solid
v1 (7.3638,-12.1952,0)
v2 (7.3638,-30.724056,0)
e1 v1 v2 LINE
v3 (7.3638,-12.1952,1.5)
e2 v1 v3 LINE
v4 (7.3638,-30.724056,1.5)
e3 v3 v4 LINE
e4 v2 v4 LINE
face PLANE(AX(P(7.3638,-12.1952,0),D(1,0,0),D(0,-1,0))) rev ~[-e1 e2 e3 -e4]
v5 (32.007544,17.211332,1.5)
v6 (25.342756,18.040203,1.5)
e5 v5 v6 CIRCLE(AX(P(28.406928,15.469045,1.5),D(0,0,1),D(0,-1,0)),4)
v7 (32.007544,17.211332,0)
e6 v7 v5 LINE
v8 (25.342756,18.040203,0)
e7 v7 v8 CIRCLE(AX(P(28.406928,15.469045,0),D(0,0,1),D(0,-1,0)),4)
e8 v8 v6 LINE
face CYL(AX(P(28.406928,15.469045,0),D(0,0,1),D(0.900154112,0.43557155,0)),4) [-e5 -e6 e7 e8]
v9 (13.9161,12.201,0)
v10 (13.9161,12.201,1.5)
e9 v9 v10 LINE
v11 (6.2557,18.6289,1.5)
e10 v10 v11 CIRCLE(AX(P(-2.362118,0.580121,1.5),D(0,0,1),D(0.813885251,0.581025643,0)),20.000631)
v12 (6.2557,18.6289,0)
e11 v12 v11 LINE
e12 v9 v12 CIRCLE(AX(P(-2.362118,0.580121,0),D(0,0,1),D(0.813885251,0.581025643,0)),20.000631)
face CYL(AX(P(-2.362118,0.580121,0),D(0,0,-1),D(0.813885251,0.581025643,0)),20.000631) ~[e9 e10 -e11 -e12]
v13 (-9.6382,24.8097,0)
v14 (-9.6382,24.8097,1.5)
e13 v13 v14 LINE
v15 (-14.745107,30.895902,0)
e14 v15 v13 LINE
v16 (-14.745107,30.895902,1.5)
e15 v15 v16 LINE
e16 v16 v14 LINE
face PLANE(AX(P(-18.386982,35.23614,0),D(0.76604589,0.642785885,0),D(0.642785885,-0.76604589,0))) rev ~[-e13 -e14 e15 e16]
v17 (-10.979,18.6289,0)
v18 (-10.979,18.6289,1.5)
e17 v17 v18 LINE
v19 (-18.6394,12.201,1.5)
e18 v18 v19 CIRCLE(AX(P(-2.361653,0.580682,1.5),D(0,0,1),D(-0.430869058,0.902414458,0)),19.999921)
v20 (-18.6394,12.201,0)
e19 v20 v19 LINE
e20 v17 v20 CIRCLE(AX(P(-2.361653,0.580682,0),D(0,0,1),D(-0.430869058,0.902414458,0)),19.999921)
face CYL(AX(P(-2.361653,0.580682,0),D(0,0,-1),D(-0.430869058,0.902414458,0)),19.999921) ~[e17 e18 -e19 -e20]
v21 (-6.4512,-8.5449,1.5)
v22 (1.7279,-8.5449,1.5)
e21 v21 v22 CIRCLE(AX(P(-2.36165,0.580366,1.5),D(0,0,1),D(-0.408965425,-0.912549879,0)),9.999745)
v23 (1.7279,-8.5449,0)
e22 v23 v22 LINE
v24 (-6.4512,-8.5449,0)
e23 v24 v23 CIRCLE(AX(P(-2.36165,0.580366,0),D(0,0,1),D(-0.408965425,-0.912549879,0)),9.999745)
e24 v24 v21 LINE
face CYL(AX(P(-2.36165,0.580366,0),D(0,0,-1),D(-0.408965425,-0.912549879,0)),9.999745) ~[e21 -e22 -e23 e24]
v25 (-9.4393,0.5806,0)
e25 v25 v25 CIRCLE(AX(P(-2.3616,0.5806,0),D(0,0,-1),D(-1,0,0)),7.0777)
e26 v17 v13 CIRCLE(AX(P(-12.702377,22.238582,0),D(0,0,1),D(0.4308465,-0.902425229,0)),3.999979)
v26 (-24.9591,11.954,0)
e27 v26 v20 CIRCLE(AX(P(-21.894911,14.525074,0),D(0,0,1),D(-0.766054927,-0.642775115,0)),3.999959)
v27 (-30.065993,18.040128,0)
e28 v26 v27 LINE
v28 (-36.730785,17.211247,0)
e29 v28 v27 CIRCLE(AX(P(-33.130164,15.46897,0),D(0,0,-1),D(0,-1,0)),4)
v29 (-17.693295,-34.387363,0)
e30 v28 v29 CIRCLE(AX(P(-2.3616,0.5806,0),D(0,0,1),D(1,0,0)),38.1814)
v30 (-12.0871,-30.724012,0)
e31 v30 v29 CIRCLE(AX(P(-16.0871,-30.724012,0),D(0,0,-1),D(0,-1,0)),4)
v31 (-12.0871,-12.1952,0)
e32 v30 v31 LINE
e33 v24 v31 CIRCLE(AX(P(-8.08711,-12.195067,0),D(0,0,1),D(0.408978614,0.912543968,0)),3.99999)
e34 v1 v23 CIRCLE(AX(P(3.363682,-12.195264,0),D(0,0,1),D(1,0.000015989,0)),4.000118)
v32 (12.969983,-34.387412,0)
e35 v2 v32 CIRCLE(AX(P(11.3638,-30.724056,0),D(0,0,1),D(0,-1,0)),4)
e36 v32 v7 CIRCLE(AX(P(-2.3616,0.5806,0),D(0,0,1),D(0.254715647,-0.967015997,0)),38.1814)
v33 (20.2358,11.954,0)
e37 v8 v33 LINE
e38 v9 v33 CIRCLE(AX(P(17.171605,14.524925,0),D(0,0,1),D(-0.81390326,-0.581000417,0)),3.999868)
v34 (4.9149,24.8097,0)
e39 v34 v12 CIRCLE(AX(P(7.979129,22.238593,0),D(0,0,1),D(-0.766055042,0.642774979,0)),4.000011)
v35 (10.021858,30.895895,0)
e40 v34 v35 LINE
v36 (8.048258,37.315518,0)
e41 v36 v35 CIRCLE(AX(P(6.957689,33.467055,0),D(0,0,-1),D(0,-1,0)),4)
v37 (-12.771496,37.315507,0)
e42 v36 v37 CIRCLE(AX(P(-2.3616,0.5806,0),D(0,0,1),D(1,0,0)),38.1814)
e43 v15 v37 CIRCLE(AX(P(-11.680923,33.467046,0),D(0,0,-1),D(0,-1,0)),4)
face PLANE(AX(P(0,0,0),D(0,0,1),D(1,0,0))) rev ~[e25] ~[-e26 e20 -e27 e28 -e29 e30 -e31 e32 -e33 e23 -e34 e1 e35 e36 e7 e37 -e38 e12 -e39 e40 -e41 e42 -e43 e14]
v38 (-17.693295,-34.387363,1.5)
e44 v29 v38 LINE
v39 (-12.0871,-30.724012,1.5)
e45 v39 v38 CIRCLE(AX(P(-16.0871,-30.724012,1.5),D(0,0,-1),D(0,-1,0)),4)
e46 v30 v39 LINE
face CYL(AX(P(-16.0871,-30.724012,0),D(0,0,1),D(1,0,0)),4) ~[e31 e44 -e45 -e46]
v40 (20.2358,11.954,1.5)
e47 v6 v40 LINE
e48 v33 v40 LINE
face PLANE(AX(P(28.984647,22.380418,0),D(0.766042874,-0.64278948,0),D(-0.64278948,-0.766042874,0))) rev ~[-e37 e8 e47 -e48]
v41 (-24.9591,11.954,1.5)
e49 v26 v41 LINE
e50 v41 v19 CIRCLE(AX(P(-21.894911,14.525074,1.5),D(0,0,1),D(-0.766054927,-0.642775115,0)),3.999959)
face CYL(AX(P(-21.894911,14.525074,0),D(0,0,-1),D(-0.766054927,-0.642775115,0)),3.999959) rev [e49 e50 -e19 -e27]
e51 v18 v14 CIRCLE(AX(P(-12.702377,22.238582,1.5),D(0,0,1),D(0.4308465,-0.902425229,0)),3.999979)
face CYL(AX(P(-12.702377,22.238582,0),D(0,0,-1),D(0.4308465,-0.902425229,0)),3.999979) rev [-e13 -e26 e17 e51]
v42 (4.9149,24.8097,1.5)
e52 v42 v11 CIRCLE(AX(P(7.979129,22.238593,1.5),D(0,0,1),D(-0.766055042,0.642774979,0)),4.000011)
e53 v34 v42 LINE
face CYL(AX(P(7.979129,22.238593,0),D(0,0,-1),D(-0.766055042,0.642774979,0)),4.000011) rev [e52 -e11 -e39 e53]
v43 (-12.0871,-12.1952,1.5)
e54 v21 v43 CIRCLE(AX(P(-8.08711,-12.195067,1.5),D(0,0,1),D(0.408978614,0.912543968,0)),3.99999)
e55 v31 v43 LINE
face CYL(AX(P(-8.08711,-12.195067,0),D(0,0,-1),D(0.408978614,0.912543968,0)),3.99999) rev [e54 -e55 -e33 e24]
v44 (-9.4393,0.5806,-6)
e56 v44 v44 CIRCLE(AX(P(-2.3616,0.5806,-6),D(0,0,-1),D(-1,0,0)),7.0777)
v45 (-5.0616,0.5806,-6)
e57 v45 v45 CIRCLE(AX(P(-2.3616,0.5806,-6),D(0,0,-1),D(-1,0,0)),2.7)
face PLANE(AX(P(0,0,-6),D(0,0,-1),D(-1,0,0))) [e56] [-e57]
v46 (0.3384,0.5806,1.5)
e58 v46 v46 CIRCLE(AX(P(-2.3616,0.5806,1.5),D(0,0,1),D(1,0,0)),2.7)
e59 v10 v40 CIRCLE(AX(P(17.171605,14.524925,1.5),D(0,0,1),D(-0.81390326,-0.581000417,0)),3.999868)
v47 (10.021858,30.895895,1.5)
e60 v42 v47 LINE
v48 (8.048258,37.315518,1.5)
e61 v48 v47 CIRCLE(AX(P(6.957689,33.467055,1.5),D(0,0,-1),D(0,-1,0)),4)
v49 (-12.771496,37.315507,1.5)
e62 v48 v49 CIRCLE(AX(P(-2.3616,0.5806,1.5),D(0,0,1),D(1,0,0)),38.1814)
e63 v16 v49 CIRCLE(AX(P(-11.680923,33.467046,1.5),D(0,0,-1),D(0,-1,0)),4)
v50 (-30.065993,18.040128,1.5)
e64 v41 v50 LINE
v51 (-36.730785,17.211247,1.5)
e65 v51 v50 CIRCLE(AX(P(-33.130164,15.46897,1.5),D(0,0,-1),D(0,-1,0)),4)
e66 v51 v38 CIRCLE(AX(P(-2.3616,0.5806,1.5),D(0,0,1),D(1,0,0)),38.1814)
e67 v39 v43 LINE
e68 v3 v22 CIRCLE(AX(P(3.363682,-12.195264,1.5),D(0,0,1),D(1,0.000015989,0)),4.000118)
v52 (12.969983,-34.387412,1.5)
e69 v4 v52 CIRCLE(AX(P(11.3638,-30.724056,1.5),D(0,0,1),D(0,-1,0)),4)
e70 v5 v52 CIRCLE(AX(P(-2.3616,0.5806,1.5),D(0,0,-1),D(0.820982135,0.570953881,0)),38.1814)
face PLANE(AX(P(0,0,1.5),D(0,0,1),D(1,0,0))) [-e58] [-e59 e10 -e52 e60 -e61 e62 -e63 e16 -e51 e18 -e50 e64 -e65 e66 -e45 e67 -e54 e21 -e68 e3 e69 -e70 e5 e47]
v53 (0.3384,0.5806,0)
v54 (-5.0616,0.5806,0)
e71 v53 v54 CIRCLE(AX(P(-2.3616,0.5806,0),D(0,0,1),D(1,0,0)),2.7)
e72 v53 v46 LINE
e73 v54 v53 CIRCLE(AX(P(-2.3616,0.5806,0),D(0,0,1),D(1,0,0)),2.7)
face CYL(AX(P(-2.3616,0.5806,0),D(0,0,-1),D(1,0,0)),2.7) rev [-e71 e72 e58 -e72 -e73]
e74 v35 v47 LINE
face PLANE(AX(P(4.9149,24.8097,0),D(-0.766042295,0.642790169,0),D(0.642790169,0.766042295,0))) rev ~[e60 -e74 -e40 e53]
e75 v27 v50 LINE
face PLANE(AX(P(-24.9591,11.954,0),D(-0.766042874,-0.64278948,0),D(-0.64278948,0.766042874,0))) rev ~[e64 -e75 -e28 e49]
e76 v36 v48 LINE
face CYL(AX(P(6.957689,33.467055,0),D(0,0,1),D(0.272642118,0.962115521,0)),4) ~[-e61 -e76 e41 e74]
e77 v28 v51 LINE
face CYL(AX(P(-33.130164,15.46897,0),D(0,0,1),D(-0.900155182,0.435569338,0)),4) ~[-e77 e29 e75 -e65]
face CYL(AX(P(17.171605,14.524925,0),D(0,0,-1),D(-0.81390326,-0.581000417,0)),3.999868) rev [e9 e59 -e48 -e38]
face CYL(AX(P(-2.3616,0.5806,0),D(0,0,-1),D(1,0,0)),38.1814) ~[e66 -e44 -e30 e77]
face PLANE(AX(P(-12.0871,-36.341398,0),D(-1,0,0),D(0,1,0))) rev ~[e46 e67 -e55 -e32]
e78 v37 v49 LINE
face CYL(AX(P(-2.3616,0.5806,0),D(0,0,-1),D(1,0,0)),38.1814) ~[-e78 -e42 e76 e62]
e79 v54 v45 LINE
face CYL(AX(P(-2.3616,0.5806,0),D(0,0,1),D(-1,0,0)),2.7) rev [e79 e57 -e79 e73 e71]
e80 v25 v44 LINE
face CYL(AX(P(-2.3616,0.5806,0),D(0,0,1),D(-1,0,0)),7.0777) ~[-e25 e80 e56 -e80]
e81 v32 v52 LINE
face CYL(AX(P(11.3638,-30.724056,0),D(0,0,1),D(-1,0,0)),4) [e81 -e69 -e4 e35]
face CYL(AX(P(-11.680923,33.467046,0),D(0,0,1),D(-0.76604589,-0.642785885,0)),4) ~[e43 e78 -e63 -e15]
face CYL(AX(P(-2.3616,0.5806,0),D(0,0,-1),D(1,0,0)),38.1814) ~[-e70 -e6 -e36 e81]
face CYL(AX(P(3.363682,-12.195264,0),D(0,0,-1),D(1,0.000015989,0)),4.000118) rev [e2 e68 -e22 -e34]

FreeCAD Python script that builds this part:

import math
import FreeCAD as App
import Part
import Sketcher
Q = App.Units.Quantity


def edges_at(feature, points):
    """Names of the edges that pass closest to the given points."""
    edges = feature.Shape.Edges
    near = lambda p: min(range(len(edges)), key=lambda i: edges[i].distToShape(Part.Vertex(*p))[0])
    return sorted({f"Edge{near(p) + 1}" for p in points})

doc = App.newDocument("Part")
body = doc.addObject("PartDesign::Body", "Body")

# Sketch on XY plane
sketch1 = body.newObject("Sketcher::SketchObject", "Sketch")
sketch1.AttachmentSupport = (doc.getObject("XY_Plane"), [""])
sketch1.MapMode = "FlatFace"
sketch1.addGeometry(Part.LineSegment(App.Vector(7.4, -12.2, 0), App.Vector(7.4, -36.3, 0)), False)
sketch1.addGeometry(Part.ArcOfCircle(Part.Circle(App.Vector(-2.4, 0.6, 0), App.Vector(0, 0, 1), 38.2), math.radians(-75), math.radians(35)), False)
sketch1.addGeometry(Part.LineSegment(App.Vector(29, 22.4, 0), App.Vector(20.2, 12, 0)), False)
sketch1.addGeometry(Part.ArcOfCircle(Part.Circle(App.Vector(17.2, 14.5, 0), App.Vector(0, 0, 1), 4), math.radians(-144), math.radians(-40)), False)
sketch1.addGeometry(Part.ArcOfCircle(Part.Circle(App.Vector(-2.4, 0.6, 0), App.Vector(0, 0, 1), 20), math.radians(36), math.radians(64)), False)
sketch1.addGeometry(Part.ArcOfCircle(Part.Circle(App.Vector(8, 22.2, 0), App.Vector(0, 0, 1), 4), math.radians(140), math.radians(244)), False)
sketch1.addGeometry(Part.LineSegment(App.Vector(4.9, 24.8, 0), App.Vector(13.7, 35.2, 0)), False)
sketch1.addGeometry(Part.ArcOfCircle(Part.Circle(App.Vector(-2.4, 0.6, 0), App.Vector(0, 0, 1), 38.2), math.radians(65), math.radians(115)), False)
sketch1.addGeometry(Part.LineSegment(App.Vector(-18.4, 35.2, 0), App.Vector(-9.6, 24.8, 0)), False)
sketch1.addGeometry(Part.ArcOfCircle(Part.Circle(App.Vector(-12.7, 22.2, 0), App.Vector(0, 0, 1), 4), math.radians(-64), math.radians(40)), False)
sketch1.addGeometry(Part.ArcOfCircle(Part.Circle(App.Vector(-2.4, 0.6, 0), App.Vector(0, 0, 1), 20), math.radians(116), math.radians(144)), False)
sketch1.addGeometry(Part.ArcOfCircle(Part.Circle(App.Vector(-21.9, 14.5, 0), App.Vector(0, 0, 1), 4), math.radians(-140), math.radians(-36)), False)
sketch1.addGeometry(Part.LineSegment(App.Vector(-25, 12, 0), App.Vector(-33.7, 22.4, 0)), False)
sketch1.addGeometry(Part.ArcOfCircle(Part.Circle(App.Vector(-2.4, 0.6, 0), App.Vector(0, 0, 1), 38.2), math.radians(145), math.radians(255)), False)
sketch1.addGeometry(Part.LineSegment(App.Vector(-12.1, -36.3, 0), App.Vector(-12.1, -12.2, 0)), False)
sketch1.addGeometry(Part.ArcOfCircle(Part.Circle(App.Vector(-8.1, -12.2, 0), App.Vector(0, 0, 1), 4), math.radians(66), math.radians(180)), False)
sketch1.addGeometry(Part.ArcOfCircle(Part.Circle(App.Vector(-2.4, 0.6, 0), App.Vector(0, 0, 1), 10), math.radians(-114), math.radians(-66)), False)
sketch1.addGeometry(Part.ArcOfCircle(Part.Circle(App.Vector(3.4, -12.2, 0), App.Vector(0, 0, 1), 4), math.radians(0), math.radians(114)), False)
sketch1.addGeometry(Part.Circle(App.Vector(-2.4, 0.6, 0), App.Vector(0, 0, 1), 2.7), False)
sketch1.addConstraint(Sketcher.Constraint("Coincident", 0, 2, 1, 1))
sketch1.addConstraint(Sketcher.Constraint("Coincident", 1, 2, 2, 1))
sketch1.addConstraint(Sketcher.Constraint("Tangent", 2, 2, 3, 2))
sketch1.addConstraint(Sketcher.Constraint("Tangent", 3, 1, 4, 1))
sketch1.addConstraint(Sketcher.Constraint("Tangent", 4, 2, 5, 2))
sketch1.addConstraint(Sketcher.Constraint("Tangent", 5, 1, 6, 1))
sketch1.addConstraint(Sketcher.Constraint("Coincident", 6, 2, 7, 1))
sketch1.addConstraint(Sketcher.Constraint("Coincident", 7, 2, 8, 1))
sketch1.addConstraint(Sketcher.Constraint("Tangent", 8, 2, 9, 2))
sketch1.addConstraint(Sketcher.Constraint("Tangent", 9, 1, 10, 1))
sketch1.addConstraint(Sketcher.Constraint("Tangent", 10, 2, 11, 2))
sketch1.addConstraint(Sketcher.Constraint("Tangent", 11, 1, 12, 1))
sketch1.addConstraint(Sketcher.Constraint("Coincident", 12, 2, 13, 1))
sketch1.addConstraint(Sketcher.Constraint("Coincident", 13, 2, 14, 1))
sketch1.addConstraint(Sketcher.Constraint("Tangent", 14, 2, 15, 2))
sketch1.addConstraint(Sketcher.Constraint("Tangent", 15, 1, 16, 1))
sketch1.addConstraint(Sketcher.Constraint("Tangent", 16, 2, 17, 2))
sketch1.addConstraint(Sketcher.Constraint("Tangent", 17, 1, 0, 1))
sketch1.addConstraint(Sketcher.Constraint("Vertical", 0))
sketch1.addConstraint(Sketcher.Constraint("Vertical", 14))
sketch1.addConstraint(Sketcher.Constraint("Coincident", 4, 3, 1, 3))
sketch1.addConstraint(Sketcher.Constraint("Coincident", 7, 3, 1, 3))
sketch1.addConstraint(Sketcher.Constraint("Coincident", 10, 3, 1, 3))
sketch1.addConstraint(Sketcher.Constraint("Coincident", 13, 3, 1, 3))
sketch1.addConstraint(Sketcher.Constraint("Coincident", 16, 3, 1, 3))
sketch1.addConstraint(Sketcher.Constraint("Coincident", 18, 3, 1, 3))
sketch1.addConstraint(Sketcher.Constraint("Equal", 3, 5))
sketch1.addConstraint(Sketcher.Constraint("Equal", 1, 7))
sketch1.addConstraint(Sketcher.Constraint("Equal", 5, 9))
sketch1.addConstraint(Sketcher.Constraint("Equal", 4, 10))
sketch1.addConstraint(Sketcher.Constraint("Equal", 9, 11))
sketch1.addConstraint(Sketcher.Constraint("Equal", 7, 13))
sketch1.addConstraint(Sketcher.Constraint("Equal", 11, 15))
sketch1.addConstraint(Sketcher.Constraint("Equal", 15, 17))
sketch1.addConstraint(Sketcher.Constraint("Parallel", 2, 6))
sketch1.addConstraint(Sketcher.Constraint("Parallel", 8, 12))
sketch1.addConstraint(Sketcher.Constraint("Horizontal", 5, 3, 9, 3))
sketch1.addConstraint(Sketcher.Constraint("Horizontal", 3, 3, 11, 3))
sketch1.addConstraint(Sketcher.Constraint("Horizontal", 15, 3, 17, 3))
sketch1.addConstraint(Sketcher.Constraint("Horizontal", 6, 2, 7, 2))
sketch1.addConstraint(Sketcher.Constraint("Equal", 2, 6))
sketch1.addConstraint(Sketcher.Constraint("Radius", 3, Q("4 mm")))
sketch1.addConstraint(Sketcher.Constraint("Radius", 4, Q("20 mm")))
sketch1.addConstraint(Sketcher.Constraint("Radius", 16, Q("10 mm")))
sketch1.addConstraint(Sketcher.Constraint("Diameter", 18, Q("5.4 mm")))
sketch1.addConstraint(Sketcher.Constraint("Angle", 2, Q("-130.0001 deg")))
sketch1.addConstraint(Sketcher.Constraint("Radius", 1, Q("38.1814 mm")))
sketch1.addConstraint(Sketcher.Constraint("DistanceX", 4, 2, 2, 2, Q("13.98 mm")))
sketch1.addConstraint(Sketcher.Constraint("DistanceY", 0, 2, 0, 1, Q("24.1462 mm")))
sketch1.addConstraint(Sketcher.Constraint("DistanceY", -1, 1, 3, 3, Q("14.525 mm")))
sketch1.addConstraint(Sketcher.Constraint("DistanceX", -1, 1, 5, 3, Q("7.979 mm")))
pad1 = body.newObject("PartDesign::Pad", "Pad")
pad1.Profile = sketch1
pad1.Length = 1.5
doc.recompute()

fillet = body.newObject("PartDesign::Fillet", "Fillet")
fillet.Base = (pad1, edges_at(pad1, [
    (13.664, 35.236, 0.75),
    (28.985, 22.38, 0.75),
    (7.364, -36.341, 0.75),
    (-12.087, -36.341, 0.75),
    (-18.387, 35.236, 0.75),
    (-33.708, 22.38, 0.75),
]))
fillet.Radius = 4

# Sketch on XY plane
sketch2 = body.newObject("Sketcher::SketchObject", "Sketch001")
sketch2.AttachmentSupport = (doc.getObject("XY_Plane"), [""])
sketch2.MapMode = "FlatFace"
sketch2.addGeometry(Part.Circle(App.Vector(-2.4, 0.6, 0), App.Vector(0, 0, 1), 7.1), False)
sketch2.addGeometry(Part.Circle(App.Vector(-2.4, 0.6, 0), App.Vector(0, 0, 1), 2.7), False)
sketch2.addConstraint(Sketcher.Constraint("Coincident", 1, 3, 0, 3))
sketch2.addConstraint(Sketcher.Constraint("Diameter", 1, Q("5.4 mm")))
sketch2.addConstraint(Sketcher.Constraint("Diameter", 0, Q("14.1554 mm")))
sketch2.addConstraint(Sketcher.Constraint("DistanceX", 0, 3, -1, 1, Q("2.3616 mm")))
sketch2.addConstraint(Sketcher.Constraint("DistanceY", -1, 1, 0, 3, Q("0.5806 mm")))
pad2 = body.newObject("PartDesign::Pad", "Pad001")
pad2.Profile = sketch2
pad2.Length = 6
pad2.Reversed = True

doc.recompute()
